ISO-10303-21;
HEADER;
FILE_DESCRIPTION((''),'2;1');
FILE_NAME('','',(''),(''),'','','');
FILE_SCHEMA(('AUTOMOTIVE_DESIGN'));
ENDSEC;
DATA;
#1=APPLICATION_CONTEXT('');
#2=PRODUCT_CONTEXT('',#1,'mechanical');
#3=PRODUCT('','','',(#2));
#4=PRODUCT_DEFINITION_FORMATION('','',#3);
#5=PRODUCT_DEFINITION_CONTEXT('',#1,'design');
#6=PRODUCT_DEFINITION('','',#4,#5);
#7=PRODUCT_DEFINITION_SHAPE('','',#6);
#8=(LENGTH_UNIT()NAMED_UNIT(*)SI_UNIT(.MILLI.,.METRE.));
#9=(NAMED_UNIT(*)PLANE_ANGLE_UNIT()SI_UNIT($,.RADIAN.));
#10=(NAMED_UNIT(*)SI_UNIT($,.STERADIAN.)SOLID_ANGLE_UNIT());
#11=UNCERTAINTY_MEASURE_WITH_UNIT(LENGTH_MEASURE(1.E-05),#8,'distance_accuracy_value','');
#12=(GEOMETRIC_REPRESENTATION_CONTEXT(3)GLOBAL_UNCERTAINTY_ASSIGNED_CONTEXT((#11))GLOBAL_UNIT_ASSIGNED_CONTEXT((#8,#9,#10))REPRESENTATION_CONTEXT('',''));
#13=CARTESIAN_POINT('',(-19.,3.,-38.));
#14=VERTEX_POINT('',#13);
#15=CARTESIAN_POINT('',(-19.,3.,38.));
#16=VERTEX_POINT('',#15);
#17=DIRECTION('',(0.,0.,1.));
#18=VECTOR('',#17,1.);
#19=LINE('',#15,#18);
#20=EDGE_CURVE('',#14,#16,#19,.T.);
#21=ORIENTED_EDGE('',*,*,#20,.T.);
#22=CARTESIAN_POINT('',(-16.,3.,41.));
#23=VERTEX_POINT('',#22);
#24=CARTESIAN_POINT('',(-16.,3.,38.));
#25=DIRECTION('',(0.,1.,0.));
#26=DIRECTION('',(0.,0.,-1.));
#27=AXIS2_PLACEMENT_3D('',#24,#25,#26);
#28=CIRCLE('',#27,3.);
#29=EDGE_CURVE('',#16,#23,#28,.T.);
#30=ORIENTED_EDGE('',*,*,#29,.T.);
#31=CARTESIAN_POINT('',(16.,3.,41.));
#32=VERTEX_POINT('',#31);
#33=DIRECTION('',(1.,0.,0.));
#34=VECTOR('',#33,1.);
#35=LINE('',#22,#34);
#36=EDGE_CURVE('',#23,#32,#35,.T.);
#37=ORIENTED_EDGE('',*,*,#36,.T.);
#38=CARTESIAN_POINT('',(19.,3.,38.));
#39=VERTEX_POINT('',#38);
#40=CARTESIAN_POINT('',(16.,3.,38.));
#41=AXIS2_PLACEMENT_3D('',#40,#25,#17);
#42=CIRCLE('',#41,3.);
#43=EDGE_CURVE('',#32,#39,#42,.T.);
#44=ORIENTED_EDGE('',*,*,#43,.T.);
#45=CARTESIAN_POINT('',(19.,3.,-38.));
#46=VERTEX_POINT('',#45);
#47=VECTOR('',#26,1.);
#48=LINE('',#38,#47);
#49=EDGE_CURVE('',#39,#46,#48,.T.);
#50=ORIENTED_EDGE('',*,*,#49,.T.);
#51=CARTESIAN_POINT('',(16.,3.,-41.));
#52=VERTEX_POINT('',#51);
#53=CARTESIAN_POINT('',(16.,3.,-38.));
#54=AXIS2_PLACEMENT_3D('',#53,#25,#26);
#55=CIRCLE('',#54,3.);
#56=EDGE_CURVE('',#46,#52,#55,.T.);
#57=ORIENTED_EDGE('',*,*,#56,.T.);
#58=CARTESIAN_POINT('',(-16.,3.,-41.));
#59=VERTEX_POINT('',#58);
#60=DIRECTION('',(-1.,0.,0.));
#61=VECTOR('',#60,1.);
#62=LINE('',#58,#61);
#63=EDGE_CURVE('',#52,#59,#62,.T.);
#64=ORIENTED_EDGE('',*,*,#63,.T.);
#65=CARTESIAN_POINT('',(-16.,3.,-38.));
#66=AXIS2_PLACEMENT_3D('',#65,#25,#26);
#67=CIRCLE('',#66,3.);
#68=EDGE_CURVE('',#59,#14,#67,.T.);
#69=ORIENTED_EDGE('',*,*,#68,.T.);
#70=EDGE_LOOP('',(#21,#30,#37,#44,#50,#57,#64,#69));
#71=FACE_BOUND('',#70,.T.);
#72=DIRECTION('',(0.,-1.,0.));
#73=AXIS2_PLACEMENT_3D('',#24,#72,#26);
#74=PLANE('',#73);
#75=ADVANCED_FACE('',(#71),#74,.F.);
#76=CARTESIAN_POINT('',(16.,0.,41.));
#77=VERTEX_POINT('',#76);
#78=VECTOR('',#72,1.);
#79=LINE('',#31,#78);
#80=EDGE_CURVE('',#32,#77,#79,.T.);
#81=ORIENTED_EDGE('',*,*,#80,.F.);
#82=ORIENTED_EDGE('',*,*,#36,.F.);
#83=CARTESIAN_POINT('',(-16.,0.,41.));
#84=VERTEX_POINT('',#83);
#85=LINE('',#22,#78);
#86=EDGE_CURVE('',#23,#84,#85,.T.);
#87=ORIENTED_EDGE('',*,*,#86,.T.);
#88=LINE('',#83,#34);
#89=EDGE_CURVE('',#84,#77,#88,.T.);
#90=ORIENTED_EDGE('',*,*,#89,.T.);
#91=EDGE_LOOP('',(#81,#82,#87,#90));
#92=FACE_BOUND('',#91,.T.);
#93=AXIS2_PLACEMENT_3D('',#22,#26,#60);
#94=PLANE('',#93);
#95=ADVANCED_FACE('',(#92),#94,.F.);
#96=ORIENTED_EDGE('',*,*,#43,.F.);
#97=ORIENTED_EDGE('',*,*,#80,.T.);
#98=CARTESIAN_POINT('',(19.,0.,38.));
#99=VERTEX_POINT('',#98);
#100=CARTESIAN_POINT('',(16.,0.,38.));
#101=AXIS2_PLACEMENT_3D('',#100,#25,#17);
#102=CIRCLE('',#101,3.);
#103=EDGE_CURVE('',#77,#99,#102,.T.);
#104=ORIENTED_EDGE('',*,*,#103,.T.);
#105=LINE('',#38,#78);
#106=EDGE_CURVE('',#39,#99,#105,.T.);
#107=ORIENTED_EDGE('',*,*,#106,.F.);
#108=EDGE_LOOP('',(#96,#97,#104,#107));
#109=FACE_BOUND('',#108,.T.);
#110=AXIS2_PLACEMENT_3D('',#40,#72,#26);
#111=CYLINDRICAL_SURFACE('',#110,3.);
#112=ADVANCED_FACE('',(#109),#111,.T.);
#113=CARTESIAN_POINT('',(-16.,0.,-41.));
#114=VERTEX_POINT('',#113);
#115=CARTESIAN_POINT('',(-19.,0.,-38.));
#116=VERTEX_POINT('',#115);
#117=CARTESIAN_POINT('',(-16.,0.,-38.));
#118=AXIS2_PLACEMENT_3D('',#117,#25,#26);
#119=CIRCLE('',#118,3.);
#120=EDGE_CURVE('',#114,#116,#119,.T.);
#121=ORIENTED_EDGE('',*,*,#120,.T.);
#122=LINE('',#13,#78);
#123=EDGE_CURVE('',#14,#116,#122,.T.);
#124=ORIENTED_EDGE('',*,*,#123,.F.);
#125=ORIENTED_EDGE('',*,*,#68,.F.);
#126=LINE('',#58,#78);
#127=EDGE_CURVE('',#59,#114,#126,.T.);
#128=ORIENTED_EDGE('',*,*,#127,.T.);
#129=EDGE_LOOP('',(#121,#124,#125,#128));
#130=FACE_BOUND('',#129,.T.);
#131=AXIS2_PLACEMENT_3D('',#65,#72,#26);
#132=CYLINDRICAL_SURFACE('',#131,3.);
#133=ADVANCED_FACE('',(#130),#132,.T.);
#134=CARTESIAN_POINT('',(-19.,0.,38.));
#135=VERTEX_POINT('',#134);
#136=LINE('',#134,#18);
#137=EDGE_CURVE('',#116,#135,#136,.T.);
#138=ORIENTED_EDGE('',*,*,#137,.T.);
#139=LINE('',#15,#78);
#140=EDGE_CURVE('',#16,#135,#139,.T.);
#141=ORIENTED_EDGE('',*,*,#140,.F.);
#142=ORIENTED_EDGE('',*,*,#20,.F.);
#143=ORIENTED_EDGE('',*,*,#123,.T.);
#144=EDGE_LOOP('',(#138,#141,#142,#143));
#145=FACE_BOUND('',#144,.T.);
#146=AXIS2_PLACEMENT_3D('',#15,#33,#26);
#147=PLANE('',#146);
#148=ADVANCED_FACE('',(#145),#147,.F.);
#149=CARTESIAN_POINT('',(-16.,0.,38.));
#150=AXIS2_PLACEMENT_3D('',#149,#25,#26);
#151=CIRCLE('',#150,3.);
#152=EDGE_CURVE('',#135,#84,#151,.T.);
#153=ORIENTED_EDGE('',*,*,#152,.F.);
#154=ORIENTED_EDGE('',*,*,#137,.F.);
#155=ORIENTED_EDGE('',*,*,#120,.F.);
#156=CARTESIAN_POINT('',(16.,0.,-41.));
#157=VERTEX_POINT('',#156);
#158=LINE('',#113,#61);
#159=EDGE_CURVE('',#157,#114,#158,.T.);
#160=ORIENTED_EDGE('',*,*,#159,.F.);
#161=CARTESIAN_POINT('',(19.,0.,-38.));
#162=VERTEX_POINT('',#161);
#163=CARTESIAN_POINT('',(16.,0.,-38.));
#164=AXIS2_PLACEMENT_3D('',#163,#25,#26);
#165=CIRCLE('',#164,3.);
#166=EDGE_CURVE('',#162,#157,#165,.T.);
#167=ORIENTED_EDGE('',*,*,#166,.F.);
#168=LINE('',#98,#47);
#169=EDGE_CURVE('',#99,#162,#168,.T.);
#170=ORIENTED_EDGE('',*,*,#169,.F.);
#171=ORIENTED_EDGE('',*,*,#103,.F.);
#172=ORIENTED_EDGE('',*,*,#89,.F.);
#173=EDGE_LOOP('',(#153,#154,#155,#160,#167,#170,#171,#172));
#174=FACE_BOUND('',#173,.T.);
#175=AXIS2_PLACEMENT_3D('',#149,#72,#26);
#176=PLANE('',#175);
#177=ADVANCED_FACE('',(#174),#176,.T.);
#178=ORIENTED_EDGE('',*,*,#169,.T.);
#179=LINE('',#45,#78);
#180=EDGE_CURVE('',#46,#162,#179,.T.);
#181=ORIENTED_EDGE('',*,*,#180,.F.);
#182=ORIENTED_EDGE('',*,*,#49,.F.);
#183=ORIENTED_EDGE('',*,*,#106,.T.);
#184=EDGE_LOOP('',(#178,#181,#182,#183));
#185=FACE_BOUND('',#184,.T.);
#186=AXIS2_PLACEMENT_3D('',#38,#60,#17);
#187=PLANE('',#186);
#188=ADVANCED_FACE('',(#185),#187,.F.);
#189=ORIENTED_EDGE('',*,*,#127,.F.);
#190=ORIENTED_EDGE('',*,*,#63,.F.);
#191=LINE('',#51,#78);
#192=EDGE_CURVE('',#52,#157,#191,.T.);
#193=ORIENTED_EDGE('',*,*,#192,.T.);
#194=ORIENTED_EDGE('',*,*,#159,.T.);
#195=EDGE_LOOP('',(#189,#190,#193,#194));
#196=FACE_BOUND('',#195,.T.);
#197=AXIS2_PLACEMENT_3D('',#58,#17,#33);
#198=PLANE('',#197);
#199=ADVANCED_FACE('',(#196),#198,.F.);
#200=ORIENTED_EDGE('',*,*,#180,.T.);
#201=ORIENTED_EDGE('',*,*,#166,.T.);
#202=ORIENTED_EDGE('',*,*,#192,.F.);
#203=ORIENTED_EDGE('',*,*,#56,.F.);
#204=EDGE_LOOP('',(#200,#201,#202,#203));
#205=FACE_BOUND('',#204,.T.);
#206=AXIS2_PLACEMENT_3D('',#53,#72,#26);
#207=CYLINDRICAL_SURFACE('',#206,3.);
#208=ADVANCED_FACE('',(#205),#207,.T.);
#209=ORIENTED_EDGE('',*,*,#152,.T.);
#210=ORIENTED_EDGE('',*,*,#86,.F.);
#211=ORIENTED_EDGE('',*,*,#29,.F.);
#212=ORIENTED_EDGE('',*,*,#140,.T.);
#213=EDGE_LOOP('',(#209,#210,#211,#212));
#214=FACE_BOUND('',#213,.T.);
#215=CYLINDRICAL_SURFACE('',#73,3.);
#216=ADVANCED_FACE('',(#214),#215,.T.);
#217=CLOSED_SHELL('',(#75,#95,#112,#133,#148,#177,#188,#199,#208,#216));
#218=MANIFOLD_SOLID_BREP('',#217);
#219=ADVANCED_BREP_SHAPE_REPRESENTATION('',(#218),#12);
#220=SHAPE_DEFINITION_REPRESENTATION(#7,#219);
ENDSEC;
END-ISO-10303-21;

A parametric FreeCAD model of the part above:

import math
import FreeCAD as App
import Part
import Sketcher

doc = App.newDocument("Part")
body = doc.addObject("PartDesign::Body", "Body")

# Sketch on XZ plane
sketch1 = body.newObject("Sketcher::SketchObject", "Sketch")
sketch1.AttachmentSupport = (doc.getObject("XZ_Plane"), [""])
sketch1.MapMode = "FlatFace"
sketch1.addGeometry([
    Part.LineSegment(App.Vector(-16, 41, 0), App.Vector(16, 41, 0)),  # 0
    Part.ArcOfCircle(Part.Circle(App.Vector(16, 38, 0), App.Vector(0, 0, 1), 3), math.radians(0), math.radians(90)),  # 1
    Part.LineSegment(App.Vector(19, 38, 0), App.Vector(19, -38, 0)),  # 2
    Part.ArcOfCircle(Part.Circle(App.Vector(16, -38, 0), App.Vector(0, 0, 1), 3), math.radians(-90), math.radians(0)),  # 3
    Part.LineSegment(App.Vector(16, -41, 0), App.Vector(-16, -41, 0)),  # 4
    Part.ArcOfCircle(Part.Circle(App.Vector(-16, -38, 0), App.Vector(0, 0, 1), 3), math.radians(180), math.radians(270)),  # 5
    Part.LineSegment(App.Vector(-19, -38, 0), App.Vector(-19, 38, 0)),  # 6
    Part.ArcOfCircle(Part.Circle(App.Vector(-16, 38, 0), App.Vector(0, 0, 1), 3), math.radians(90), math.radians(180)),  # 7
], False)
sketch1.addConstraint([
    Sketcher.Constraint("Tangent", 0, 2, 1, 2),
    Sketcher.Constraint("Tangent", 1, 1, 2, 1),
    Sketcher.Constraint("Tangent", 2, 2, 3, 2),
    Sketcher.Constraint("Tangent", 3, 1, 4, 1),
    Sketcher.Constraint("Tangent", 4, 2, 5, 2),
    Sketcher.Constraint("Tangent", 5, 1, 6, 1),
    Sketcher.Constraint("Tangent", 6, 2, 7, 2),
    Sketcher.Constraint("Tangent", 7, 1, 0, 1),
    Sketcher.Constraint("Horizontal", 0),
    Sketcher.Constraint("Vertical", 2),
    Sketcher.Constraint("Horizontal", 4),
    Sketcher.Constraint("Vertical", 6),
    Sketcher.Constraint("Equal", 1, 3),
    Sketcher.Constraint("Equal", 3, 5),
    Sketcher.Constraint("Equal", 5, 7),
    Sketcher.Constraint("Symmetric", 1, 3, 5, 3, -1, 1),
    Sketcher.Constraint("Radius", 1, 3.0),
    Sketcher.Constraint("DistanceX", 0, 1, 0, 2, 32.0),
    Sketcher.Constraint("DistanceY", 2, 2, 2, 1, 76.0),
])
pad1 = body.newObject("PartDesign::Pad", "Pad")
pad1.Profile = sketch1
pad1.Length = 3
pad1.Reversed = True

doc.recompute()
